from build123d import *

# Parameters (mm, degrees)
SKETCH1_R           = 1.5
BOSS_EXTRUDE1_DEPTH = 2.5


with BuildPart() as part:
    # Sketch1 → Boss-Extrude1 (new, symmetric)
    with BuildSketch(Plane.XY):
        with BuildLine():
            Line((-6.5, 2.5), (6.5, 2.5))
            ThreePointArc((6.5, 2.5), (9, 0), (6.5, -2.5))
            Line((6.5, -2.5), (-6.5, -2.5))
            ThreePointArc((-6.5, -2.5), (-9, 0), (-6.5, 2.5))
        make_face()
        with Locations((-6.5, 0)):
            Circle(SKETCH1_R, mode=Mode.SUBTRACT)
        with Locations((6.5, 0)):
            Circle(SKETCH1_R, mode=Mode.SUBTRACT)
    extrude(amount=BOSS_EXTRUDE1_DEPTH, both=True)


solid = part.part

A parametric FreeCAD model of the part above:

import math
import FreeCAD as App
import Part
import Sketcher
from FreeCAD import Vector
Q = App.Units.Quantity

doc = App.newDocument("Part")
body = doc.addObject("PartDesign::Body", "Body")

# Sketch on XY plane
sketch1 = body.newObject("Sketcher::SketchObject", "Sketch")
sketch1.AttachmentSupport = (doc.getObject("XY_Plane"), [""])
sketch1.MapMode = "FlatFace"
sketch1.addGeometry(Part.LineSegment(Vector(6.5, 2.5, 0), Vector(-6.5, 2.5, 0)), False)
sketch1.addGeometry(Part.ArcOfCircle(Part.Circle(Vector(-6.5, 0, 0), Vector(0, 0, 1), 2.5), math.radians(90), math.radians(270)), False)
sketch1.addGeometry(Part.LineSegment(Vector(-6.5, -2.5, 0), Vector(6.5, -2.5, 0)), False)
sketch1.addGeometry(Part.ArcOfCircle(Part.Circle(Vector(6.5, 0, 0), Vector(0, 0, 1), 2.5), math.radians(-90), math.radians(90)), False)
sketch1.addGeometry(Part.Circle(Vector(6.5, 0, 0), Vector(0, 0, 1), 1.5), False)
sketch1.addGeometry(Part.Circle(Vector(-6.5, 0, 0), Vector(0, 0, 1), 1.5), False)
sketch1.addConstraint(Sketcher.Constraint("Tangent", 0, 2, 1, 1))
sketch1.addConstraint(Sketcher.Constraint("Tangent", 1, 2, 2, 1))
sketch1.addConstraint(Sketcher.Constraint("Tangent", 2, 2, 3, 1))
sketch1.addConstraint(Sketcher.Constraint("Tangent", 3, 2, 0, 1))
sketch1.addConstraint(Sketcher.Constraint("Horizontal", 0))
sketch1.addConstraint(Sketcher.Constraint("Horizontal", 2))
sketch1.addConstraint(Sketcher.Constraint("Coincident", 4, 3, 3, 3))
sketch1.addConstraint(Sketcher.Constraint("Coincident", 5, 3, 1, 3))
sketch1.addConstraint(Sketcher.Constraint("Equal", 4, 5))
sketch1.addConstraint(Sketcher.Constraint("Symmetric", 1, 3, 3, 3, -1, 1))
sketch1.addConstraint(Sketcher.Constraint("Diameter", 4, Q("3 mm")))
sketch1.addConstraint(Sketcher.Constraint("Radius", 1, Q("2.5 mm")))
sketch1.addConstraint(Sketcher.Constraint("DistanceX", 0, 2, 0, 1, Q("13 mm")))
pad1 = body.newObject("PartDesign::Pad", "Pad")
pad1.Profile = sketch1
pad1.Length = 5
pad1.Midplane = True

doc.recompute()
